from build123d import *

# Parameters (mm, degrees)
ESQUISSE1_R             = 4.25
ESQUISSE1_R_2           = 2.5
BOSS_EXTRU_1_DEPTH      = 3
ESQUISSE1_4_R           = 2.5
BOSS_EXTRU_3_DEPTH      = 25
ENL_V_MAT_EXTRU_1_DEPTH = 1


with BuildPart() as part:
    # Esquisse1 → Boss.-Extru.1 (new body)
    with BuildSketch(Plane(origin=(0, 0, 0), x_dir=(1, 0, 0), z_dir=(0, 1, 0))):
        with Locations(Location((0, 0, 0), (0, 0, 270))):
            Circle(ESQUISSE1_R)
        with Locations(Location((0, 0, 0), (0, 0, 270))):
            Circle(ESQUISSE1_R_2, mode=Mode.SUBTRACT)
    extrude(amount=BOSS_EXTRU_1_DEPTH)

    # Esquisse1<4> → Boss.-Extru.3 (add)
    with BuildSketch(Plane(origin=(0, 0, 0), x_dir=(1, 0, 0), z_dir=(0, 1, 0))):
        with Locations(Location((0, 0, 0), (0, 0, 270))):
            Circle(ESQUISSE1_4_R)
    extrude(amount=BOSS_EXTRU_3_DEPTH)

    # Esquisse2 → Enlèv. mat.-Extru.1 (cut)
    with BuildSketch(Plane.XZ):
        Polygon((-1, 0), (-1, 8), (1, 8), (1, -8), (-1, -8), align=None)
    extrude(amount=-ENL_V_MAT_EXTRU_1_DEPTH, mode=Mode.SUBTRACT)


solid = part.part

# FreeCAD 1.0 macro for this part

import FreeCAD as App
import Part
import Sketcher
from FreeCAD import Vector

doc = App.newDocument("Part")
body = doc.addObject("PartDesign::Body", "Body")

sketch1 = doc.addObject("Sketcher::SketchObject", "Sketch")
body.addObject(sketch1)
sketch1.AttachmentSupport = (doc.XZ_Plane, [""])
sketch1.MapMode = "FlatFace"
sketch1.addGeometry([
    Part.Circle(Vector(0, 0, 0), Vector(0, 0, 1), 4.2),
    Part.Circle(Vector(0, 0, 0), Vector(0, 0, 1), 2.5),
], False)
sketch1.addConstraint([
    Sketcher.Constraint("Coincident", 0, 3, -1, 1),
    Sketcher.Constraint("Coincident", 1, 3, -1, 1),
    Sketcher.Constraint("Diameter", 1, 5.0),
    Sketcher.Constraint("Diameter", 0, 8.5),
])
pad1 = doc.addObject("PartDesign::Pad", "Pad")
body.addObject(pad1)
pad1.Profile = sketch1
pad1.Length = 3
pad1.Reversed = True

sketch2 = doc.addObject("Sketcher::SketchObject", "Sketch001")
body.addObject(sketch2)
sketch2.AttachmentSupport = (doc.XZ_Plane, [""])
sketch2.MapMode = "FlatFace"
sketch2.addGeometry(Part.Circle(Vector(0, 0, 0), Vector(0, 0, 1), 2.5), False)
sketch2.addConstraint([
    Sketcher.Constraint("Coincident", 0, 3, -1, 1),
    Sketcher.Constraint("Diameter", 0, 5.0),
])
pad2 = doc.addObject("PartDesign::Pad", "Pad001")
body.addObject(pad2)
pad2.Profile = sketch2
pad2.Length = 25
pad2.Reversed = True

sketch3 = doc.addObject("Sketcher::SketchObject", "Sketch002")
body.addObject(sketch3)
sketch3.AttachmentSupport = (doc.XZ_Plane, [""])
sketch3.MapMode = "FlatFace"
sketch3.addGeometry([
    Part.LineSegment(Vector(-1, 8, 0), Vector(-1, -8, 0)),
    Part.LineSegment(Vector(-1, -8, 0), Vector(1, -8, 0)),
    Part.LineSegment(Vector(1, -8, 0), Vector(1, 8, 0)),
    Part.LineSegment(Vector(1, 8, 0), Vector(-1, 8, 0)),
], False)
sketch3.addConstraint([
    Sketcher.Constraint("Coincident", 0, 2, 1, 1),
    Sketcher.Constraint("Coincident", 1, 2, 2, 1),
    Sketcher.Constraint("Coincident", 2, 2, 3, 1),
    Sketcher.Constraint("Coincident", 3, 2, 0, 1),
    Sketcher.Constraint("Vertical", 0),
    Sketcher.Constraint("Horizontal", 1),
    Sketcher.Constraint("Vertical", 2),
    Sketcher.Constraint("Horizontal", 3),
    Sketcher.Constraint("Symmetric", 0, 2, 2, 2, -1, 1),
    Sketcher.Constraint("DistanceX", 1, 1, 1, 2, 2.0),
    Sketcher.Constraint("DistanceY", 0, 2, 0, 1, 16.0),
])
pocket1 = doc.addObject("PartDesign::Pocket", "Pocket")
body.addObject(pocket1)
pocket1.Profile = sketch3
pocket1.Length = 1

doc.recompute()
